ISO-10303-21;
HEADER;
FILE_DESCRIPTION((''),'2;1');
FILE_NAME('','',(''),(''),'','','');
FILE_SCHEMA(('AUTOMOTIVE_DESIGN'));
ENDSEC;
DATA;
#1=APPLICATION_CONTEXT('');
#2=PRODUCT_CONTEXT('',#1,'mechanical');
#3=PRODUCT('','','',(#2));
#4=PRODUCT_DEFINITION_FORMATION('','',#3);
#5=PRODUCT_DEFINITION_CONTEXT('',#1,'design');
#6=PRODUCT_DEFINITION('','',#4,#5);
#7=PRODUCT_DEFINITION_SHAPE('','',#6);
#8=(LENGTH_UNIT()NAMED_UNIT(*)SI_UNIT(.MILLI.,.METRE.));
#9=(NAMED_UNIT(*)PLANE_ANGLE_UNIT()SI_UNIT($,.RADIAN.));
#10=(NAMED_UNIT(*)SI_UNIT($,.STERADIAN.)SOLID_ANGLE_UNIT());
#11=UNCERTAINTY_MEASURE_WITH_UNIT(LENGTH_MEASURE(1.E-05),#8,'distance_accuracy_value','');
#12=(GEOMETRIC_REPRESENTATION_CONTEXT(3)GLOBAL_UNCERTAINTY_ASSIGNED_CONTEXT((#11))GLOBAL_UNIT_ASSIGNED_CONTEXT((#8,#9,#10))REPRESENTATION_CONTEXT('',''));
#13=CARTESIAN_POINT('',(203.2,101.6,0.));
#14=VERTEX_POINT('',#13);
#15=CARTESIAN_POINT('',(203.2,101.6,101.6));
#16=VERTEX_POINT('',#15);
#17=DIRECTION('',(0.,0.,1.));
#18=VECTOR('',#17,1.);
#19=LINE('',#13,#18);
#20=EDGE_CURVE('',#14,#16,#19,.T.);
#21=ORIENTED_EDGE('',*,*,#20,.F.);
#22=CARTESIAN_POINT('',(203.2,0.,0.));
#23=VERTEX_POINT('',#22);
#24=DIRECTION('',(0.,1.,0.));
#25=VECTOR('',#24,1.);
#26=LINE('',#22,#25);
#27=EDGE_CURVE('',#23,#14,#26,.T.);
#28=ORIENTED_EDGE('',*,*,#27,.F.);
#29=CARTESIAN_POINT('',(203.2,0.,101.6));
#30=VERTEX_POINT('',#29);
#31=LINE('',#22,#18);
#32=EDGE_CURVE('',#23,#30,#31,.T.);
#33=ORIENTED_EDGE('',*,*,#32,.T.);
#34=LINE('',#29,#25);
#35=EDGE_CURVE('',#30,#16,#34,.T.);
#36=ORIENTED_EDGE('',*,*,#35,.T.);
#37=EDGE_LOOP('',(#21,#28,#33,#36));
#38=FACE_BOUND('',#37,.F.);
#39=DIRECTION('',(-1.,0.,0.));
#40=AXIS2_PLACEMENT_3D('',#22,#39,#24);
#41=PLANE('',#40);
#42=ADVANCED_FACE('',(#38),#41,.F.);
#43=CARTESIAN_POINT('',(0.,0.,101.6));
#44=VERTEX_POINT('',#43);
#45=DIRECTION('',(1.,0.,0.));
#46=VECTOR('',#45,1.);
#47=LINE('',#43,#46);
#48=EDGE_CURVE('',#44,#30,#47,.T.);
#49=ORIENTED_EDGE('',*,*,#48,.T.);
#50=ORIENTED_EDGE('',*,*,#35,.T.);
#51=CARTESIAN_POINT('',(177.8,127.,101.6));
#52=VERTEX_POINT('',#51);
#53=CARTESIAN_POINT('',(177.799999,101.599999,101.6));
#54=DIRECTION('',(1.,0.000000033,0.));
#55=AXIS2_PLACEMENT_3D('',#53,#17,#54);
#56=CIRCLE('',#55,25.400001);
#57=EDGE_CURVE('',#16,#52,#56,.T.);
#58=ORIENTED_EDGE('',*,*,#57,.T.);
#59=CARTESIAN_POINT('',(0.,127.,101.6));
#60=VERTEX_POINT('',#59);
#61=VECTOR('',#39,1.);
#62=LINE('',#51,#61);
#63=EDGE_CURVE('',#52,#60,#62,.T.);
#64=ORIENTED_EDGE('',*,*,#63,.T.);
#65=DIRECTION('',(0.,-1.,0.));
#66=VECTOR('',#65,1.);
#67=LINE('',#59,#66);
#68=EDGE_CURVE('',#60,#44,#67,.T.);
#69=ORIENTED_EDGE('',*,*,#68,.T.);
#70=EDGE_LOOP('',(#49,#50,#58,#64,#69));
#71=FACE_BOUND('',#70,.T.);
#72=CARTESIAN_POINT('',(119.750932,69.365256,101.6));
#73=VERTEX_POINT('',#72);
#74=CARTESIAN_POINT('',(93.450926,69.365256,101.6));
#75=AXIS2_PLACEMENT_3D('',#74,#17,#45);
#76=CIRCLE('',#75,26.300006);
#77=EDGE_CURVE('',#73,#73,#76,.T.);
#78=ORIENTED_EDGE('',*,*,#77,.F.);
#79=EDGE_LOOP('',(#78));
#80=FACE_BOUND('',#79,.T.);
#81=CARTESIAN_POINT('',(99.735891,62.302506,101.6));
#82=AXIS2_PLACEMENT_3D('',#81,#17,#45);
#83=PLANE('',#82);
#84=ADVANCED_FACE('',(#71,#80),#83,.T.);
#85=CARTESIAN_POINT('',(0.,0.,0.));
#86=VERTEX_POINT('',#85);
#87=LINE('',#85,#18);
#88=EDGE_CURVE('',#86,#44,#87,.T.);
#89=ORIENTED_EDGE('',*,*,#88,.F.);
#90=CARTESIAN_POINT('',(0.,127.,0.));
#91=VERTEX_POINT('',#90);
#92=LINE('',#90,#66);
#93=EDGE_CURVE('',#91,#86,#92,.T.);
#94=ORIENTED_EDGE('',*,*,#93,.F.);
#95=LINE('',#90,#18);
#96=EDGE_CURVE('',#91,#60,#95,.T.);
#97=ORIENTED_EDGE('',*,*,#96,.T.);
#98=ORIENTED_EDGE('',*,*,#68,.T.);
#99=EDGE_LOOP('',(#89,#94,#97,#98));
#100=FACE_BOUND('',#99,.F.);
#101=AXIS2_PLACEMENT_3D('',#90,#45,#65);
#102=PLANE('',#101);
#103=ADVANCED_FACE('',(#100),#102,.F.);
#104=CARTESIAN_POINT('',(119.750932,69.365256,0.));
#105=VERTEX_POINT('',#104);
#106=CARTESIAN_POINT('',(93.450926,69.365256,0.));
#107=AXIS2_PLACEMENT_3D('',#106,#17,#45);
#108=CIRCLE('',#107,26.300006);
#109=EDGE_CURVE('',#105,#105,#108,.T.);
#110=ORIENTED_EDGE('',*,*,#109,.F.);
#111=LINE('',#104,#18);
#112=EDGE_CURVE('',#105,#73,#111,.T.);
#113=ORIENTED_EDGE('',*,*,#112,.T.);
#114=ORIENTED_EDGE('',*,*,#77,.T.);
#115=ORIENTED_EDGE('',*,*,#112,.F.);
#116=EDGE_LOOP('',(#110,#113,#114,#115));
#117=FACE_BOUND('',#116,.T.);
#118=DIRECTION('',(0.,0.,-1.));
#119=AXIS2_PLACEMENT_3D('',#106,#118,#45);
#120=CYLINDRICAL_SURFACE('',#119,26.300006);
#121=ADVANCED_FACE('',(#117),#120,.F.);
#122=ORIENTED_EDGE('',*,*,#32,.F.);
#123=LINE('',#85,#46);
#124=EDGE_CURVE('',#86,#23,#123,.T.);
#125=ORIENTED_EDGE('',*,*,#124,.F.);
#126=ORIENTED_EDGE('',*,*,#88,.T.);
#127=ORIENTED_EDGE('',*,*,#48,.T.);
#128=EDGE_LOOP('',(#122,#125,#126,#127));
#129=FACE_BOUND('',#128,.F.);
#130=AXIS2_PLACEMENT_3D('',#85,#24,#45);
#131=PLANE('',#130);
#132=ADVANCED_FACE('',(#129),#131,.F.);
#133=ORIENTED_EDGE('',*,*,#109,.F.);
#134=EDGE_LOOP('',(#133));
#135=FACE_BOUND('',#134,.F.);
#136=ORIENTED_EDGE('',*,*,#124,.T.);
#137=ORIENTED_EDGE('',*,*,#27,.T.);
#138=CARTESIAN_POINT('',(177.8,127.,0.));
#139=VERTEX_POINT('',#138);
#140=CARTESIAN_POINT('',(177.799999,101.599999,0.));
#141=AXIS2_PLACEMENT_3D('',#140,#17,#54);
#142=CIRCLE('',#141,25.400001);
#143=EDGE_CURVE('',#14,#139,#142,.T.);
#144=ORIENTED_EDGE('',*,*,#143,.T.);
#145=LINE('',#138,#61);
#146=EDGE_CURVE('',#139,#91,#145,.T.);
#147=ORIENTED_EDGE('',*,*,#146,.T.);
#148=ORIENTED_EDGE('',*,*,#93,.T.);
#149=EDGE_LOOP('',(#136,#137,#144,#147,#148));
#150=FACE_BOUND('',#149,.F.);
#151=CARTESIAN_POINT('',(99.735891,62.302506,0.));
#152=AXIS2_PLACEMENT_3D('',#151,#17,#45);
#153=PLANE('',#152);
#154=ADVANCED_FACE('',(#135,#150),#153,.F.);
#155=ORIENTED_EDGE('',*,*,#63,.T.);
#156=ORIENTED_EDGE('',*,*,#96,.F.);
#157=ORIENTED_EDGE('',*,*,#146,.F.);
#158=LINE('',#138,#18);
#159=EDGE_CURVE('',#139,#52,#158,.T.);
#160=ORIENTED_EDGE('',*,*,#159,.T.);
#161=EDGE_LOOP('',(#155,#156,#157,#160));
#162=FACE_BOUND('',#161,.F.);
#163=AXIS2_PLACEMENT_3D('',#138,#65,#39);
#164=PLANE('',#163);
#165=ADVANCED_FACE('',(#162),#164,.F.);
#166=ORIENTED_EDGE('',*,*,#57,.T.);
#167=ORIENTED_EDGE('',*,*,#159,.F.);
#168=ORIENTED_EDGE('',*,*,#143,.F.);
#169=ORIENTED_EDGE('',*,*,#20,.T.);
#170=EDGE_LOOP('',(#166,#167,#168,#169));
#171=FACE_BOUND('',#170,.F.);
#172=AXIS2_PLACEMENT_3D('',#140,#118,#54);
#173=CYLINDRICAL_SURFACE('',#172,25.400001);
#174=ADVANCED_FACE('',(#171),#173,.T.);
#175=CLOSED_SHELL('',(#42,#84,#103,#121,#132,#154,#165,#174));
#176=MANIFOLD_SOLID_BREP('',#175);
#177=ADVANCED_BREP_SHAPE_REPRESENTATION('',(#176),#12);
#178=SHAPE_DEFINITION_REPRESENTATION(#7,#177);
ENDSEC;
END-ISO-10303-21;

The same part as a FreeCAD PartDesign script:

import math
import FreeCAD as App
import Part
import Sketcher
Q = App.Units.Quantity

doc = App.newDocument("Part")
body = doc.addObject("PartDesign::Body", "Body")

# Sketch on XY plane
sketch1 = body.newObject("Sketcher::SketchObject", "Sketch")
sketch1.AttachmentSupport = (doc.getObject("XY_Plane"), [""])
sketch1.MapMode = "FlatFace"
sketch1.addGeometry(Part.LineSegment(App.Vector(0, 127, 0), App.Vector(0, 0, 0)), False)
sketch1.addGeometry(Part.LineSegment(App.Vector(0, 0, 0), App.Vector(203.2, 0, 0)), False)
sketch1.addGeometry(Part.LineSegment(App.Vector(203.2, 0, 0), App.Vector(203.2, 101.6, 0)), False)
sketch1.addGeometry(Part.ArcOfCircle(Part.Circle(App.Vector(177.799999, 101.599999, 0), App.Vector(0, 0, 1), 25.400001), math.radians(0.000002), math.radians(89.999998)), False)
sketch1.addGeometry(Part.LineSegment(App.Vector(177.8, 127, 0), App.Vector(0, 127, 0)), False)
sketch1.addGeometry(Part.Circle(App.Vector(93.450926, 69.365256, 0), App.Vector(0, 0, 1), 26.300006), False)
sketch1.addConstraint(Sketcher.Constraint("Coincident", 0, 2, 1, 1))
sketch1.addConstraint(Sketcher.Constraint("Coincident", 1, 2, 2, 1))
sketch1.addConstraint(Sketcher.Constraint("Tangent", 2, 2, 3, 1))
sketch1.addConstraint(Sketcher.Constraint("Tangent", 3, 2, 4, 1))
sketch1.addConstraint(Sketcher.Constraint("Coincident", 4, 2, 0, 1))
sketch1.addConstraint(Sketcher.Constraint("Vertical", 0))
sketch1.addConstraint(Sketcher.Constraint("Horizontal", 1))
sketch1.addConstraint(Sketcher.Constraint("Vertical", 2))
sketch1.addConstraint(Sketcher.Constraint("Horizontal", 4))
sketch1.addConstraint(Sketcher.Constraint("Coincident", 0, 2, -1, 1))
sketch1.addConstraint(Sketcher.Constraint("Radius", 3, Q("1 in")))
sketch1.addConstraint(Sketcher.Constraint("DistanceX", 1, 1, 1, 2, Q("8 in")))
sketch1.addConstraint(Sketcher.Constraint("DistanceY", 0, 2, 0, 1, Q("5 in")))
sketch1.addConstraint(Sketcher.Constraint("Diameter", 5, Q("52.600012 mm")))
sketch1.addConstraint(Sketcher.Constraint("DistanceX", -1, 1, 5, 3, Q("93.450926 mm")))
sketch1.addConstraint(Sketcher.Constraint("DistanceY", -1, 1, 5, 3, Q("69.365256 mm")))
pad1 = body.newObject("PartDesign::Pad", "Pad")
pad1.Profile = sketch1
pad1.Length = Q("4 in")

doc.recompute()
